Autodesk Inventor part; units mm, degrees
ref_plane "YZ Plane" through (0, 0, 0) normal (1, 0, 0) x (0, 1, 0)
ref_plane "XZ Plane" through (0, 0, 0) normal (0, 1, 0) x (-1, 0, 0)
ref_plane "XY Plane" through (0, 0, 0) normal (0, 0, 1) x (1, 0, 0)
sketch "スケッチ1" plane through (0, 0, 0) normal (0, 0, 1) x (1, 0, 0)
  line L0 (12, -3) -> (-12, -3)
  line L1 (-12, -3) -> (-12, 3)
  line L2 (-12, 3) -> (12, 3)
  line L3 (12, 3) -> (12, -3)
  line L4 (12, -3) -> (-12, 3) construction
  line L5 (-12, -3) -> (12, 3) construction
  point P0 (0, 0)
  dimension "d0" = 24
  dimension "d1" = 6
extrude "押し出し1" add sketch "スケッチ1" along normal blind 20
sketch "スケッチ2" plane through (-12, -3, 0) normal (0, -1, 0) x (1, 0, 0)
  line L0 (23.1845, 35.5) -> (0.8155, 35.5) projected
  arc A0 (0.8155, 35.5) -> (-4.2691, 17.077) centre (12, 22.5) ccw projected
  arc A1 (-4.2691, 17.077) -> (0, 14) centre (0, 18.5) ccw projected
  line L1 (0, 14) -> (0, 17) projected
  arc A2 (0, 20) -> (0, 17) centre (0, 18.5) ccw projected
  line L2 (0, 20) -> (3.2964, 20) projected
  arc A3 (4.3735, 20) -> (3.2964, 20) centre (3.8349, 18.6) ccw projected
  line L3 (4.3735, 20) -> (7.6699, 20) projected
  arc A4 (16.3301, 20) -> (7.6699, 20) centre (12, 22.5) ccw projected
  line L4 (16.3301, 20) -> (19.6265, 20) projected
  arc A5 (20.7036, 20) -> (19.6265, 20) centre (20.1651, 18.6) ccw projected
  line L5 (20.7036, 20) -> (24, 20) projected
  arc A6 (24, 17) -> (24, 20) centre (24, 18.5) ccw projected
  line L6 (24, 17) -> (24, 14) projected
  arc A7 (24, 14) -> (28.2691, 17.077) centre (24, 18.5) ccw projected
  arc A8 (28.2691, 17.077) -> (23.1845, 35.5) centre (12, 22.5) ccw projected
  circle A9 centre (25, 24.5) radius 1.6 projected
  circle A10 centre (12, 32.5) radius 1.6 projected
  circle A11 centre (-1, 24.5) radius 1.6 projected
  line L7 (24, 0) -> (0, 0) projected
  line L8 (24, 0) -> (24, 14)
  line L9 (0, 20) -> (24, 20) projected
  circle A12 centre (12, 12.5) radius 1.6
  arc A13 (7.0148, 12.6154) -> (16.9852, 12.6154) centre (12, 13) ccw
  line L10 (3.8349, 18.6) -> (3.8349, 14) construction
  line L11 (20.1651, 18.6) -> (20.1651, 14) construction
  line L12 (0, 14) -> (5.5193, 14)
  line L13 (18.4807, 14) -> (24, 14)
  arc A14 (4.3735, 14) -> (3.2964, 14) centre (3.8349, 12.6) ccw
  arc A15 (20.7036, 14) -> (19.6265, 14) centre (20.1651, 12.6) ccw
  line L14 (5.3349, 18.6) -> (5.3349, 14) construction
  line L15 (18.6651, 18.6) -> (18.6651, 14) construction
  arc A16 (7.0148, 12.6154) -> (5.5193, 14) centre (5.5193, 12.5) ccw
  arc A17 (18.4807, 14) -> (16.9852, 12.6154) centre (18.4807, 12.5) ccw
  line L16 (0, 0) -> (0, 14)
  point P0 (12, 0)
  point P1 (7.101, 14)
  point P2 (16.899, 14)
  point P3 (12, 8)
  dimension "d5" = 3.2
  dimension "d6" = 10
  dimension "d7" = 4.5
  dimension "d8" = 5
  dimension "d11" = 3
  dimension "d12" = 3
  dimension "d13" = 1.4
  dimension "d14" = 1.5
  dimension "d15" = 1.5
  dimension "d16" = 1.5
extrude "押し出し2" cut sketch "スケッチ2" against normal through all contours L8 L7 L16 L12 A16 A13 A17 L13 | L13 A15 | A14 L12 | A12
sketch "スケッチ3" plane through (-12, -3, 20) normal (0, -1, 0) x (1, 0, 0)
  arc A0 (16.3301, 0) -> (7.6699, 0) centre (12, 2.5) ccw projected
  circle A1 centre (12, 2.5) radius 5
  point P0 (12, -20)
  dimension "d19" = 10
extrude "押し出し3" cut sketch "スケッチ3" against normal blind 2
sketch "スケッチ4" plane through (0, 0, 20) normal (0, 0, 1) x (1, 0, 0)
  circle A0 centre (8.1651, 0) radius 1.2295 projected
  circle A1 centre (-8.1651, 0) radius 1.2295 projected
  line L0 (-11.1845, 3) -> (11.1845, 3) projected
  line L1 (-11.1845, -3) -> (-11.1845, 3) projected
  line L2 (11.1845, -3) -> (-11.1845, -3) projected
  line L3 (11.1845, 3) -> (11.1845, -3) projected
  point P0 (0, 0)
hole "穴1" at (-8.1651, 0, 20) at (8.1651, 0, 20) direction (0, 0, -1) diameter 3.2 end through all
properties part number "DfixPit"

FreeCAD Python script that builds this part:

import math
import FreeCAD as App
import Part
import Sketcher

V = App.Vector

doc = App.newDocument("Part")
body = doc.addObject("PartDesign::Body", "Body")

# Sketch on XY plane
sketch1 = doc.addObject("Sketcher::SketchObject", "Sketch")
body.addObject(sketch1)
sketch1.AttachmentSupport = (doc.XY_Plane, [""])
sketch1.MapMode = "FlatFace"
sketch1.addGeometry([
    Part.LineSegment(V(-12, -3, 0), V(12, -3, 0)),
    Part.LineSegment(V(12, -3, 0), V(12, 3, 0)),
    Part.LineSegment(V(12, 3, 0), V(-12, 3, 0)),
    Part.LineSegment(V(-12, 3, 0), V(-12, -3, 0)),
], False)
sketch1.addConstraint([
    Sketcher.Constraint("Coincident", 0, 2, 1, 1),
    Sketcher.Constraint("Coincident", 1, 2, 2, 1),
    Sketcher.Constraint("Coincident", 2, 2, 3, 1),
    Sketcher.Constraint("Coincident", 3, 2, 0, 1),
    Sketcher.Constraint("Horizontal", 0),
    Sketcher.Constraint("Vertical", 1),
    Sketcher.Constraint("Horizontal", 2),
    Sketcher.Constraint("Vertical", 3),
    Sketcher.Constraint("Symmetric", 0, 2, 2, 2, -1, 1),
    Sketcher.Constraint("DistanceX", 0, 1, 0, 2, 24.0),
    Sketcher.Constraint("DistanceY", 1, 1, 1, 2, 6.0),
])
pad1 = doc.addObject("PartDesign::Pad", "Pad")
body.addObject(pad1)
pad1.Profile = sketch1
pad1.Length = 20

# Sketch on XZ plane
sketch2 = doc.addObject("Sketcher::SketchObject", "Sketch001")
body.addObject(sketch2)
sketch2.AttachmentSupport = (doc.XZ_Plane, [""])
sketch2.MapMode = "FlatFace"
sketch2.AttachmentOffset = App.Placement(V(0, 0, 3), App.Rotation())
sketch2.addGeometry([
    Part.LineSegment(V(12, 0, 0), V(12, 14, 0)),  # 0
    Part.LineSegment(V(12, 14, 0), V(8.7036, 14, 0)),  # 1
    Part.ArcOfCircle(Part.Circle(V(8.1651, 12.6, 0), V(0, 0, 1), 1.499994), math.radians(68.961118), math.radians(111.042447)),  # 2
    Part.LineSegment(V(7.6265, 14, 0), V(6.4807, 14, 0)),  # 3
    Part.ArcOfCircle(Part.Circle(V(6.4807, 12.5, 0), V(0, 0, 1), 1.5), math.radians(90), math.radians(175.587525)),  # 4
    Part.ArcOfCircle(Part.Circle(V(0, 13, 0), V(0, 0, 1), 5.000014), math.radians(-175.588463), math.radians(-4.411537)),  # 5
    Part.ArcOfCircle(Part.Circle(V(-6.4807, 12.5, 0), V(0, 0, 1), 1.499946), math.radians(4.412475), math.radians(90)),  # 6
    Part.LineSegment(V(-6.4807, 14, 0), V(-7.6265, 14, 0)),  # 7
    Part.ArcOfCircle(Part.Circle(V(-8.1651, 12.6, 0), V(0, 0, 1), 1.50003), math.radians(68.957553), math.radians(111.038882)),  # 8
    Part.LineSegment(V(-8.7036, 14, 0), V(-12, 14, 0)),  # 9
    Part.LineSegment(V(-12, 14, 0), V(-12, 0, 0)),  # 10
    Part.LineSegment(V(-12, 0, 0), V(12, 0, 0)),  # 11
    Part.Circle(V(0, 12.5, 0), V(0, 0, 1), 1.6),  # 12
], False)
sketch2.addConstraint([
    Sketcher.Constraint("Coincident", 0, 2, 1, 1),
    Sketcher.Constraint("Coincident", 1, 2, 2, 1),
    Sketcher.Constraint("Coincident", 2, 2, 3, 1),
    Sketcher.Constraint("Tangent", 3, 2, 4, 1),
    Sketcher.Constraint("Tangent", 4, 2, 5, 2),
    Sketcher.Constraint("Tangent", 5, 1, 6, 1),
    Sketcher.Constraint("Tangent", 6, 2, 7, 1),
    Sketcher.Constraint("Coincident", 7, 2, 8, 1),
    Sketcher.Constraint("Coincident", 8, 2, 9, 1),
    Sketcher.Constraint("Coincident", 9, 2, 10, 1),
    Sketcher.Constraint("Coincident", 10, 2, 11, 1),
    Sketcher.Constraint("Coincident", 11, 2, 0, 1),
    Sketcher.Constraint("Vertical", 0),
    Sketcher.Constraint("Horizontal", 1),
    Sketcher.Constraint("Horizontal", 3),
    Sketcher.Constraint("Horizontal", 7),
    Sketcher.Constraint("Horizontal", 9),
    Sketcher.Constraint("Vertical", 10),
    Sketcher.Constraint("Horizontal", 11),
    Sketcher.Constraint("Equal", 2, 4),
    Sketcher.Constraint("Equal", 4, 6),
    Sketcher.Constraint("Equal", 6, 8),
    Sketcher.Constraint("Symmetric", 10, 2, 11, 2, -1, 1),
    Sketcher.Constraint("Symmetric", 4, 3, 6, 3, -2),
    Sketcher.Constraint("Symmetric", 2, 3, 8, 3, -2),
    Sketcher.Constraint("PointOnObject", 12, 3, -2),
    Sketcher.Constraint("Horizontal", 6, 3, 12, 3),
    Sketcher.Constraint("Horizontal", 1, 2, 2, 2),
    Sketcher.Constraint("Horizontal", 7, 2, 8, 2),
    Sketcher.Constraint("Radius", 5, 5.0),
    Sketcher.Constraint("Diameter", 12, 3.2),
    Sketcher.Constraint("Radius", 2, 1.5),
    Sketcher.Constraint("DistanceY", 2, 3, 0, 2, 1.4),
    Sketcher.Constraint("DistanceX", 11, 1, 11, 2, 24.0),
    Sketcher.Constraint("DistanceY", 0, 1, 0, 2, 14.0),
    Sketcher.Constraint("DistanceY", -1, 1, 5, 3, 13.0),
    Sketcher.Constraint("DistanceX", 4, 2, 2, 3, 3.18),
])
pocket1 = doc.addObject("PartDesign::Pocket", "Pocket")
body.addObject(pocket1)
pocket1.Profile = sketch2
pocket1.Type = "ThroughAll"

# Sketch on XZ plane
sketch3 = doc.addObject("Sketcher::SketchObject", "Sketch002")
body.addObject(sketch3)
sketch3.AttachmentSupport = (doc.XZ_Plane, [""])
sketch3.MapMode = "FlatFace"
sketch3.AttachmentOffset = App.Placement(V(0, 0, 3), App.Rotation())
sketch3.addGeometry(Part.Circle(V(0, 22.5, 0), V(0, 0, 1), 4.999977), False)
sketch3.addConstraint([
    Sketcher.Constraint("PointOnObject", 0, 3, -2),
    Sketcher.Constraint("Diameter", 0, 10.0),
    Sketcher.Constraint("DistanceY", -1, 1, 0, 3, 22.5),
])
pocket2 = doc.addObject("PartDesign::Pocket", "Pocket001")
body.addObject(pocket2)
pocket2.Profile = sketch3
pocket2.Length = 2

# Sketch on XY plane
sketch4 = doc.addObject("Sketcher::SketchObject", "Sketch003")
body.addObject(sketch4)
sketch4.AttachmentSupport = (doc.XY_Plane, [""])
sketch4.MapMode = "FlatFace"
sketch4.AttachmentOffset = App.Placement(V(0, 0, 20), App.Rotation())
sketch4.addGeometry([
    Part.Circle(V(-8.1651, 0, 0), V(0, 0, 1), 1.6),
    Part.Circle(V(8.1651, 0, 0), V(0, 0, 1), 1.6),
], False)
sketch4.addConstraint([
    Sketcher.Constraint("Equal", 0, 1),
    Sketcher.Constraint("Symmetric", 0, 3, 1, 3, -1, 1),
    Sketcher.Constraint("PointOnObject", 0, 3, -1),
    Sketcher.Constraint("Diameter", 0, 3.2),
    Sketcher.Constraint("DistanceX", 0, 3, -1, 1, 8.165),
])
doc.recompute()
hole = doc.addObject("PartDesign::Hole", "Hole")
body.addObject(hole)
hole.Profile = sketch4
hole.ThreadType = "None"
hole.Diameter = 3.2
hole.DepthType = "ThroughAll"

doc.recompute()
